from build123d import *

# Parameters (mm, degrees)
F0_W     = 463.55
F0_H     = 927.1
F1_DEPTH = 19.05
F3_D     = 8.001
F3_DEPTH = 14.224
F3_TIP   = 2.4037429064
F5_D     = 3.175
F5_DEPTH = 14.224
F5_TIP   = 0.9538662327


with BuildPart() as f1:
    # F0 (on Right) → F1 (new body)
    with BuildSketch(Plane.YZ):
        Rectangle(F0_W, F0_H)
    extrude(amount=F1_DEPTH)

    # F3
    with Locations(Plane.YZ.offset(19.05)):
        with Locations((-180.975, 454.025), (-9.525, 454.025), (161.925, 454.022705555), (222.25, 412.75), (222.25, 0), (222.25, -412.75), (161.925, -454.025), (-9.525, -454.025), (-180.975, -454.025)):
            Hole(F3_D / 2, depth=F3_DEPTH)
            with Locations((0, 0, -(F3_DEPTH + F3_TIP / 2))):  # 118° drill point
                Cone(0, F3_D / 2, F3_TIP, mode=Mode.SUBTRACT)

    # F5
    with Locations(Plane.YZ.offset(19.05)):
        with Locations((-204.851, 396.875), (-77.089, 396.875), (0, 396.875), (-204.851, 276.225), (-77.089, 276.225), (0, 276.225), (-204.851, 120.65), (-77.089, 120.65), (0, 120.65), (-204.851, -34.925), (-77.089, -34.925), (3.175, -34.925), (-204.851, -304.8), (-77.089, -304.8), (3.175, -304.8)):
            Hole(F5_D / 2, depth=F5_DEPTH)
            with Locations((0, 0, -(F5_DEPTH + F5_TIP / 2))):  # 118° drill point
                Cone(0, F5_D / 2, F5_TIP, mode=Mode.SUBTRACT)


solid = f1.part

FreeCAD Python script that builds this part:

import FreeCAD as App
import Part
import Sketcher

V = App.Vector
Q = App.Units.Quantity


def add_polygon(sketch, points):
    """Adds a closed chain of lines whose ends are joined by coincident constraints."""
    first, n = sketch.GeometryCount, len(points)
    for a, b in zip(points, points[1:] + points[:1]):
        sketch.addGeometry(Part.LineSegment(App.Vector(*a, 0), App.Vector(*b, 0)), False)
    for i in range(n):
        sketch.addConstraint(Sketcher.Constraint("Coincident", first + i, 2, first + (i + 1) % n, 1))

doc = App.newDocument("Part")
params = doc.addObject("Spreadsheet::Sheet", "Params")
for row, (alias, value) in enumerate([
    ("sketch1_height", "36.5 in"),
    ("sketch1_width", "18.25 in"),
    ("pad1_length", "0.75 in"),
    ("sketch2_diameter", "0.315 in"),
    ("hole_diameter", "0.315 in"),
    ("hole_depth", "0.56 in"),
    ("sketch3_diameter", "0.125 in"),
    ("hole2_diameter", "0.125 in"),
    ("hole2_depth", "0.56 in"),
], start=1):
    params.set(f"A{row}", alias)
    params.set(f"B{row}", "=" + value)
    params.setAlias(f"B{row}", alias)

body = doc.addObject("PartDesign::Body", "Body")

# Sketch on YZ plane
sketch1 = body.newObject("Sketcher::SketchObject", "Sketch")
sketch1.AttachmentSupport = (doc.getObject("YZ_Plane"), [""])
sketch1.MapMode = "FlatFace"
add_polygon(sketch1, [(-232, 464), (-232, -464), (232, -464), (232, 464)])  # lines 0-3
sketch1.addConstraint(Sketcher.Constraint("Vertical", 0))
sketch1.addConstraint(Sketcher.Constraint("Horizontal", 1))
sketch1.addConstraint(Sketcher.Constraint("Vertical", 2))
sketch1.addConstraint(Sketcher.Constraint("Horizontal", 3))
sketch1.addConstraint(Sketcher.Constraint("Symmetric", 0, 2, 2, 2, -1, 1))
sketch1.addConstraint(Sketcher.Constraint("DistanceY", 0, 2, 0, 1, Q("36.5 in")))
sketch1.addConstraint(Sketcher.Constraint("DistanceX", 1, 1, 1, 2, Q("18.25 in")))
sketch1.setExpression("Constraints[9]", "Params.sketch1_height")
sketch1.setExpression("Constraints[10]", "Params.sketch1_width")
pad1 = body.newObject("PartDesign::Pad", "Pad")
pad1.Profile = sketch1
pad1.setExpression("Length", "Params.pad1_length")

# Sketch on YZ plane
sketch2 = body.newObject("Sketcher::SketchObject", "Sketch001")
sketch2.AttachmentSupport = (doc.getObject("YZ_Plane"), [""])
sketch2.MapMode = "FlatFace"
sketch2.AttachmentOffset = App.Placement(V(0, 0, 0.75 * 25.4), App.Rotation())
sketch2.addGeometry(Part.Circle(V(-181, 454, 0), V(0, 0, 1), 4), False)
sketch2.addGeometry(Part.Circle(V(-9.5, 454, 0), V(0, 0, 1), 4), False)
sketch2.addGeometry(Part.Circle(V(161.9, 454, 0), V(0, 0, 1), 4), False)
sketch2.addGeometry(Part.Circle(V(222.2, 412.8, 0), V(0, 0, 1), 4), False)
sketch2.addGeometry(Part.Circle(V(222.2, 0, 0), V(0, 0, 1), 4), False)
sketch2.addGeometry(Part.Circle(V(222.2, -412.8, 0), V(0, 0, 1), 4), False)
sketch2.addGeometry(Part.Circle(V(161.9, -454, 0), V(0, 0, 1), 4), False)
sketch2.addGeometry(Part.Circle(V(-9.5, -454, 0), V(0, 0, 1), 4), False)
sketch2.addGeometry(Part.Circle(V(-181, -454, 0), V(0, 0, 1), 4), False)
sketch2.addConstraint(Sketcher.Constraint("Equal", 0, 1))
sketch2.addConstraint(Sketcher.Constraint("Equal", 1, 2))
sketch2.addConstraint(Sketcher.Constraint("Equal", 2, 3))
sketch2.addConstraint(Sketcher.Constraint("Equal", 3, 4))
sketch2.addConstraint(Sketcher.Constraint("Equal", 4, 5))
sketch2.addConstraint(Sketcher.Constraint("Equal", 5, 6))
sketch2.addConstraint(Sketcher.Constraint("Equal", 6, 7))
sketch2.addConstraint(Sketcher.Constraint("Equal", 7, 8))
sketch2.addConstraint(Sketcher.Constraint("Symmetric", 3, 3, 5, 3, -1))
sketch2.addConstraint(Sketcher.Constraint("Symmetric", 1, 3, 7, 3, -1))
sketch2.addConstraint(Sketcher.Constraint("Symmetric", 0, 3, 8, 3, -1))
sketch2.addConstraint(Sketcher.Constraint("PointOnObject", 4, 3, -1))
sketch2.addConstraint(Sketcher.Constraint("Horizontal", 0, 3, 1, 3))
sketch2.addConstraint(Sketcher.Constraint("Horizontal", 6, 3, 7, 3))
sketch2.addConstraint(Sketcher.Constraint("Vertical", 3, 3, 4, 3))
sketch2.addConstraint(Sketcher.Constraint("Vertical", 2, 3, 6, 3))
sketch2.addConstraint(Sketcher.Constraint("Diameter", 0, Q("0.315 in")))
sketch2.addConstraint(Sketcher.Constraint("DistanceX", 0, 3, 2, 3, Q("13.5 in")))
sketch2.addConstraint(Sketcher.Constraint("DistanceY", 5, 3, 3, 3, Q("32.5 in")))
sketch2.addConstraint(Sketcher.Constraint("DistanceX", -1, 1, 3, 3, Q("8.75 in")))
sketch2.addConstraint(Sketcher.Constraint("DistanceX", 0, 3, 1, 3, Q("6.75 in")))
sketch2.addConstraint(Sketcher.Constraint("DistanceY", 6, 3, 1, 3, Q("35.75 in")))
sketch2.addConstraint(Sketcher.Constraint("DistanceX", 0, 3, -1, 1, Q("7.125 in")))
sketch2.addConstraint(Sketcher.Constraint("DistanceY", -1, 1, 2, 3, 454.022706))
sketch2.setExpression("Constraints[16]", "Params.sketch2_diameter")
doc.recompute()
hole = body.newObject("PartDesign::Hole", "Hole")
hole.Profile = sketch2
hole.ThreadType = "None"
hole.setExpression("Diameter", "Params.hole_diameter")
hole.DepthType = "Dimension"
hole.setExpression("Depth", "Params.hole_depth")
hole.DrillPoint = "Angled"
hole.DrillPointAngle = 118

# Sketch on YZ plane
sketch3 = body.newObject("Sketcher::SketchObject", "Sketch002")
sketch3.AttachmentSupport = (doc.getObject("YZ_Plane"), [""])
sketch3.MapMode = "FlatFace"
sketch3.AttachmentOffset = App.Placement(V(0, 0, 0.75 * 25.4), App.Rotation())
sketch3.addGeometry(Part.Circle(V(-204.9, 396.9, 0), V(0, 0, 1), 1.6), False)
sketch3.addGeometry(Part.Circle(V(-77.1, 396.9, 0), V(0, 0, 1), 1.6), False)
sketch3.addGeometry(Part.Circle(V(0, 396.9, 0), V(0, 0, 1), 1.6), False)
sketch3.addGeometry(Part.Circle(V(-204.9, 276.2, 0), V(0, 0, 1), 1.6), False)
sketch3.addGeometry(Part.Circle(V(-77.1, 276.2, 0), V(0, 0, 1), 1.6), False)
sketch3.addGeometry(Part.Circle(V(0, 276.2, 0), V(0, 0, 1), 1.6), False)
sketch3.addGeometry(Part.Circle(V(-204.9, 120.7, 0), V(0, 0, 1), 1.6), False)
sketch3.addGeometry(Part.Circle(V(-77.1, 120.7, 0), V(0, 0, 1), 1.6), False)
sketch3.addGeometry(Part.Circle(V(0, 120.7, 0), V(0, 0, 1), 1.6), False)
sketch3.addGeometry(Part.Circle(V(-204.9, -34.9, 0), V(0, 0, 1), 1.6), False)
sketch3.addGeometry(Part.Circle(V(-77.1, -34.9, 0), V(0, 0, 1), 1.6), False)
sketch3.addGeometry(Part.Circle(V(3.2, -34.9, 0), V(0, 0, 1), 1.6), False)
sketch3.addGeometry(Part.Circle(V(-204.9, -304.8, 0), V(0, 0, 1), 1.6), False)
sketch3.addGeometry(Part.Circle(V(-77.1, -304.8, 0), V(0, 0, 1), 1.6), False)
sketch3.addGeometry(Part.Circle(V(3.2, -304.8, 0), V(0, 0, 1), 1.6), False)
sketch3.addConstraint(Sketcher.Constraint("Equal", 0, 1))
sketch3.addConstraint(Sketcher.Constraint("Equal", 1, 2))
sketch3.addConstraint(Sketcher.Constraint("Equal", 2, 3))
sketch3.addConstraint(Sketcher.Constraint("Equal", 3, 4))
sketch3.addConstraint(Sketcher.Constraint("Equal", 4, 5))
sketch3.addConstraint(Sketcher.Constraint("Equal", 5, 6))
sketch3.addConstraint(Sketcher.Constraint("Equal", 6, 7))
sketch3.addConstraint(Sketcher.Constraint("Equal", 7, 8))
sketch3.addConstraint(Sketcher.Constraint("Equal", 8, 9))
sketch3.addConstraint(Sketcher.Constraint("Equal", 9, 10))
sketch3.addConstraint(Sketcher.Constraint("Equal", 10, 11))
sketch3.addConstraint(Sketcher.Constraint("Equal", 11, 12))
sketch3.addConstraint(Sketcher.Constraint("Equal", 12, 13))
sketch3.addConstraint(Sketcher.Constraint("Equal", 13, 14))
sketch3.addConstraint(Sketcher.Constraint("PointOnObject", 2, 3, -2))
sketch3.addConstraint(Sketcher.Constraint("PointOnObject", 5, 3, -2))
sketch3.addConstraint(Sketcher.Constraint("PointOnObject", 8, 3, -2))
sketch3.addConstraint(Sketcher.Constraint("Horizontal", 0, 3, 1, 3))
sketch3.addConstraint(Sketcher.Constraint("Horizontal", 1, 3, 2, 3))
sketch3.addConstraint(Sketcher.Constraint("Horizontal", 3, 3, 4, 3))
sketch3.addConstraint(Sketcher.Constraint("Horizontal", 4, 3, 5, 3))
sketch3.addConstraint(Sketcher.Constraint("Horizontal", 6, 3, 7, 3))
sketch3.addConstraint(Sketcher.Constraint("Horizontal", 7, 3, 8, 3))
sketch3.addConstraint(Sketcher.Constraint("Horizontal", 9, 3, 10, 3))
sketch3.addConstraint(Sketcher.Constraint("Horizontal", 10, 3, 11, 3))
sketch3.addConstraint(Sketcher.Constraint("Horizontal", 12, 3, 13, 3))
sketch3.addConstraint(Sketcher.Constraint("Horizontal", 13, 3, 14, 3))
sketch3.addConstraint(Sketcher.Constraint("Vertical", 0, 3, 3, 3))
sketch3.addConstraint(Sketcher.Constraint("Vertical", 1, 3, 4, 3))
sketch3.addConstraint(Sketcher.Constraint("Vertical", 3, 3, 6, 3))
sketch3.addConstraint(Sketcher.Constraint("Vertical", 4, 3, 7, 3))
sketch3.addConstraint(Sketcher.Constraint("Vertical", 6, 3, 9, 3))
sketch3.addConstraint(Sketcher.Constraint("Vertical", 7, 3, 10, 3))
sketch3.addConstraint(Sketcher.Constraint("Vertical", 9, 3, 12, 3))
sketch3.addConstraint(Sketcher.Constraint("Vertical", 10, 3, 13, 3))
sketch3.addConstraint(Sketcher.Constraint("Vertical", 11, 3, 14, 3))
sketch3.addConstraint(Sketcher.Constraint("Diameter", 0, Q("0.125 in")))
sketch3.addConstraint(Sketcher.Constraint("DistanceY", 12, 3, -1, 1, Q("12 in")))
sketch3.addConstraint(Sketcher.Constraint("DistanceY", -1, 1, 6, 3, Q("4.75 in")))
sketch3.addConstraint(Sketcher.Constraint("DistanceX", 0, 3, 1, 3, Q("5.03 in")))
sketch3.addConstraint(Sketcher.Constraint("DistanceY", 3, 3, 0, 3, Q("4.75 in")))
sketch3.addConstraint(Sketcher.Constraint("DistanceY", 9, 3, 3, 3, Q("12.25 in")))
sketch3.addConstraint(Sketcher.Constraint("DistanceX", 10, 3, 11, 3, Q("3.16 in")))
sketch3.addConstraint(Sketcher.Constraint("DistanceX", 0, 3, -1, 1, Q("8.065 in")))
sketch3.addConstraint(Sketcher.Constraint("DistanceY", -1, 1, 0, 3, Q("15.625 in")))
sketch3.setExpression("Constraints[36]", "Params.sketch3_diameter")
doc.recompute()
hole2 = body.newObject("PartDesign::Hole", "Hole001")
hole2.Profile = sketch3
hole2.ThreadType = "None"
hole2.setExpression("Diameter", "Params.hole2_diameter")
hole2.DepthType = "Dimension"
hole2.setExpression("Depth", "Params.hole2_depth")
hole2.DrillPoint = "Angled"
hole2.DrillPointAngle = 118

doc.recompute()
